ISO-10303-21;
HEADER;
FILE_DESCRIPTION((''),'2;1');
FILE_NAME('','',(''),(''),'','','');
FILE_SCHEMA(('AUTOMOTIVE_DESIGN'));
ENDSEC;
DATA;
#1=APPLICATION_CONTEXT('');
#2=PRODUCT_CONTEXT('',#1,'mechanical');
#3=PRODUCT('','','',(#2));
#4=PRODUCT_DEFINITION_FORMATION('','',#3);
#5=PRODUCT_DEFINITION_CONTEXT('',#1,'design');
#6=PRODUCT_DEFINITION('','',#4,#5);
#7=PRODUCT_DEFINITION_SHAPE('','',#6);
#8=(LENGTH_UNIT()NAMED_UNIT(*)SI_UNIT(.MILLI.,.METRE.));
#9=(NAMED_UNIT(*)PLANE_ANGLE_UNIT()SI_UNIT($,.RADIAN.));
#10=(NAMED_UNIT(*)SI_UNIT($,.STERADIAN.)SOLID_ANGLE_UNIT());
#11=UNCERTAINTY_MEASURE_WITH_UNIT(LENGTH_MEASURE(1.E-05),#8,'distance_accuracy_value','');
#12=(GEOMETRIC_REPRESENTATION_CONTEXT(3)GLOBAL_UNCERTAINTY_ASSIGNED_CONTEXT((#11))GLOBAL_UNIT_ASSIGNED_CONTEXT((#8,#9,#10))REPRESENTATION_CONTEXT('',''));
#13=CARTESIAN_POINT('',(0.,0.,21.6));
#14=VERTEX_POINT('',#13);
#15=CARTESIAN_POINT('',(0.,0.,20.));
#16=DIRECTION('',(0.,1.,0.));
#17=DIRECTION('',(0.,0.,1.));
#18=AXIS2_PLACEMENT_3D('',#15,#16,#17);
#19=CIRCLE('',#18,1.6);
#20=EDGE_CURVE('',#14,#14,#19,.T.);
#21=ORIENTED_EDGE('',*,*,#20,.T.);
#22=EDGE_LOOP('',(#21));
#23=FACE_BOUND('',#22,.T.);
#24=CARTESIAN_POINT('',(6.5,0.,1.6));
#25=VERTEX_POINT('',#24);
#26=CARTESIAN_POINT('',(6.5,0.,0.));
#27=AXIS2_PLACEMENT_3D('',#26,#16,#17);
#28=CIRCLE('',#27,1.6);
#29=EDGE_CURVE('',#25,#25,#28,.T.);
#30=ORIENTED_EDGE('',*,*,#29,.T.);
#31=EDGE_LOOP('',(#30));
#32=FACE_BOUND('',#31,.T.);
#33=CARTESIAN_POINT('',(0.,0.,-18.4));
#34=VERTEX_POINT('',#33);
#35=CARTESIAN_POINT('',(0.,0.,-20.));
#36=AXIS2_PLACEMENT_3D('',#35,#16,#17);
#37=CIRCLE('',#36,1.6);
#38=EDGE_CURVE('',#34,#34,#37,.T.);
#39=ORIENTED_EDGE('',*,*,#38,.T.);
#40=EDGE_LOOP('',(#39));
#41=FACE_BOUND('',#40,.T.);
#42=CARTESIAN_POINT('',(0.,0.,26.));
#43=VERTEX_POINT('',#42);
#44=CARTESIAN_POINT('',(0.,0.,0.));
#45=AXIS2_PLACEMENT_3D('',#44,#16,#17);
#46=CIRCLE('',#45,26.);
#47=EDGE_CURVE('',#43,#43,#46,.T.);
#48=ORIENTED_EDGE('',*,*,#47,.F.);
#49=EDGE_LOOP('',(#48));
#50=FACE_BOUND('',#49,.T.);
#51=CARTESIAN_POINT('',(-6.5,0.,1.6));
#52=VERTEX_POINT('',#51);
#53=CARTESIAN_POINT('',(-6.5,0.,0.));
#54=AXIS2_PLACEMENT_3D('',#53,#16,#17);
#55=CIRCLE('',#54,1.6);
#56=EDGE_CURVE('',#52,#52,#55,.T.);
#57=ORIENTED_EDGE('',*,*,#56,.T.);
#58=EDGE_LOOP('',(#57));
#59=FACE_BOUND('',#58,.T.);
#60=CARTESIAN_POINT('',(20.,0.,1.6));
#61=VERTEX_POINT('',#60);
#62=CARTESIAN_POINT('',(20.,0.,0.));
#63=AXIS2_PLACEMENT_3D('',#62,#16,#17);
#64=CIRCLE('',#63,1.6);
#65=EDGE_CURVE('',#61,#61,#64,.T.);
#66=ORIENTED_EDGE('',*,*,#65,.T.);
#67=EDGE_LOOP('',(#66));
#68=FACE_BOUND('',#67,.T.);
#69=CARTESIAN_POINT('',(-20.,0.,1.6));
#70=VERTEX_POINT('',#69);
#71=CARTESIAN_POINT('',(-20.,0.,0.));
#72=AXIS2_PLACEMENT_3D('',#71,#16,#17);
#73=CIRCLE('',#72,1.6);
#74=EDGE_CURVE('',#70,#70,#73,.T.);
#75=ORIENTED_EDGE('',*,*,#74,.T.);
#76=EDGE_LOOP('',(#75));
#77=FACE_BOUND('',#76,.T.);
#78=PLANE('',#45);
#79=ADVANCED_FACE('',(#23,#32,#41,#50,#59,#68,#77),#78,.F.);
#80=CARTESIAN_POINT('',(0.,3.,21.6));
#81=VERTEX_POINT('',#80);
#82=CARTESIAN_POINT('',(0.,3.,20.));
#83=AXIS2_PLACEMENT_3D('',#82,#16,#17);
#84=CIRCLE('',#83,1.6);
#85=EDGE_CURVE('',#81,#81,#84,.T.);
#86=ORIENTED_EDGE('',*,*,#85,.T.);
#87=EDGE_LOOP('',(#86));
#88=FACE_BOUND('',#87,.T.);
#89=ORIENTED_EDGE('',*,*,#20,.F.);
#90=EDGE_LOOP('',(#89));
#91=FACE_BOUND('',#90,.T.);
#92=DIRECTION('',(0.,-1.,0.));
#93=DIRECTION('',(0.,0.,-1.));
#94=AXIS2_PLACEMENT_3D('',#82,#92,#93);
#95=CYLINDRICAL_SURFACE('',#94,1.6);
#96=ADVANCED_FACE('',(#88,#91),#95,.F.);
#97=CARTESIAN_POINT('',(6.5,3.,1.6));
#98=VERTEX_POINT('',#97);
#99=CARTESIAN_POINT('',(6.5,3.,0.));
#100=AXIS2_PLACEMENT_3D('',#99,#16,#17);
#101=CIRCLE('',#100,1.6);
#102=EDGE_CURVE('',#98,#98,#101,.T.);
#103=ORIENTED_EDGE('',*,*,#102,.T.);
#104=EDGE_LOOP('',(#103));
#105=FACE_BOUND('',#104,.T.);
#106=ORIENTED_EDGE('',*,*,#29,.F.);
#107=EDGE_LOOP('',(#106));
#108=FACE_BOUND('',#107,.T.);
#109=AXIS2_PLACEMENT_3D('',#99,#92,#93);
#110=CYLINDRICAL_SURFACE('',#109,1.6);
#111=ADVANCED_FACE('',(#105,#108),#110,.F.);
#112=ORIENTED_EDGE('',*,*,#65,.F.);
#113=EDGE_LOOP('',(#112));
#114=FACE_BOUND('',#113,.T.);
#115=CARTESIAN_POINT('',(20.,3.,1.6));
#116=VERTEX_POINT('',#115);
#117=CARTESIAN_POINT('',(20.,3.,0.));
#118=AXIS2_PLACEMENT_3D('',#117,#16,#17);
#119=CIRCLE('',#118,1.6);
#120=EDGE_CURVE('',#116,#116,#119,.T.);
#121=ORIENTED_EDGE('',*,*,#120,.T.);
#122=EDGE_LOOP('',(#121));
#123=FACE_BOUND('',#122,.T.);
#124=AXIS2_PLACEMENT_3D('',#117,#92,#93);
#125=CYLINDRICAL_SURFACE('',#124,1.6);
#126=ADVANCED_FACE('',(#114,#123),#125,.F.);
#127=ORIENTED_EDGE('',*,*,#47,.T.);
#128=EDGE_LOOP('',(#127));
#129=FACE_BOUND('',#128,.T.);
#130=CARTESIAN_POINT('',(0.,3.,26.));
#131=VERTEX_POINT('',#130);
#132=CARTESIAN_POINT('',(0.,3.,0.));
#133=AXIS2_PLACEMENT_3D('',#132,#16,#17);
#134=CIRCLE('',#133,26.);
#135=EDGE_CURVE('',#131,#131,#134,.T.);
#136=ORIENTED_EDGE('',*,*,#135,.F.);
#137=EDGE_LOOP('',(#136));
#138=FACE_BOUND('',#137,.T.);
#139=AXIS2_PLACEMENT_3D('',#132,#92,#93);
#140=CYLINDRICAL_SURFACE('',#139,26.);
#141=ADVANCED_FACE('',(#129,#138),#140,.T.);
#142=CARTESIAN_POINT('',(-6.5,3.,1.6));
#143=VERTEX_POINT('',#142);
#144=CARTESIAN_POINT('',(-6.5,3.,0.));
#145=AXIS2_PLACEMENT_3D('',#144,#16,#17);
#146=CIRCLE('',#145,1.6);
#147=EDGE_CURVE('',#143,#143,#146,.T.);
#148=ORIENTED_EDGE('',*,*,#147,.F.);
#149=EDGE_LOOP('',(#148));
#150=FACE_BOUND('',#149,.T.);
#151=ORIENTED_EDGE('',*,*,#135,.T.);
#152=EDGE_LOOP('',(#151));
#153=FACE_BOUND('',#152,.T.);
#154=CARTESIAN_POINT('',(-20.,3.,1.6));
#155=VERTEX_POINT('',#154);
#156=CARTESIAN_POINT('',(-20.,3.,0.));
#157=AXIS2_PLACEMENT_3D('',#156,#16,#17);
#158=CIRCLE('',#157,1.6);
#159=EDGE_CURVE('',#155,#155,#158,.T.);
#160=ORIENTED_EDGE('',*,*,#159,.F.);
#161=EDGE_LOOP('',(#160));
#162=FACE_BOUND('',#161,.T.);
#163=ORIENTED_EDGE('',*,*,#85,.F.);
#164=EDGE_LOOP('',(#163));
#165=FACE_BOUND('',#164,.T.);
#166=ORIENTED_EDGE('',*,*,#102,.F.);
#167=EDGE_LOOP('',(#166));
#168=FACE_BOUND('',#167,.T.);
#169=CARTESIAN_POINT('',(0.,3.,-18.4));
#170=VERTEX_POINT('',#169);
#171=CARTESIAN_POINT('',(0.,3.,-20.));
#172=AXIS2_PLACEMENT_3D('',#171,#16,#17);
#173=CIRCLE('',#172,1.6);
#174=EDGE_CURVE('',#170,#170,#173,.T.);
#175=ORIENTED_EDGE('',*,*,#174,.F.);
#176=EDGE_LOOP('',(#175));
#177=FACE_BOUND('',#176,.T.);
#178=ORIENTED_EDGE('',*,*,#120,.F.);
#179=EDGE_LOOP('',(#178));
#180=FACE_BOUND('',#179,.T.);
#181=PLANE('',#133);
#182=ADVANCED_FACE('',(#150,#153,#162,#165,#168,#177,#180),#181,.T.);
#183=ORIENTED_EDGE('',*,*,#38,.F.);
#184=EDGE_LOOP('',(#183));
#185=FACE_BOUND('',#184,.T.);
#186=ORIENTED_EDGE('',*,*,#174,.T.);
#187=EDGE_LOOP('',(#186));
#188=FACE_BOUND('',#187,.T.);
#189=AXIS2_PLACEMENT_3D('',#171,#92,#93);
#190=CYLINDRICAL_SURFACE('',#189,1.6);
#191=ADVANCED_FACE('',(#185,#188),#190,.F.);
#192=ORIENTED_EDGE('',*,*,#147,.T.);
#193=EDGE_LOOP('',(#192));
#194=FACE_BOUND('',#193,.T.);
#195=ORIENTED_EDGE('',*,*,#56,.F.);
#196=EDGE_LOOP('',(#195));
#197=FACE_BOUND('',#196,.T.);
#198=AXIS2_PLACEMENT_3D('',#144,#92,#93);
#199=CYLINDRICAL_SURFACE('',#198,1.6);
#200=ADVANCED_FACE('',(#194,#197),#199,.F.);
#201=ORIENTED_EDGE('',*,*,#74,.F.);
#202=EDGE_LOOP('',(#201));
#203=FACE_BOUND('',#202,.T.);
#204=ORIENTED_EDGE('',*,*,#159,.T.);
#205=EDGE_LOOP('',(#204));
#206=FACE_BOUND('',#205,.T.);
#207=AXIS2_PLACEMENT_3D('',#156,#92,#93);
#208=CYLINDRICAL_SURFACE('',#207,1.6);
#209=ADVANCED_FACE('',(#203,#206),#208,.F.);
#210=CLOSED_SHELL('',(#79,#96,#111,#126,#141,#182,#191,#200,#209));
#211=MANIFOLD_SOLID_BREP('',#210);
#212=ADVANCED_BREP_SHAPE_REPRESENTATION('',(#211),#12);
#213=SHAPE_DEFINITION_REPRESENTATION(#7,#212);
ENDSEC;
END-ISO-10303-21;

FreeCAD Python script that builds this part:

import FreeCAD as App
import Part
import Sketcher
from FreeCAD import Vector
Q = App.Units.Quantity

doc = App.newDocument("Part")
body = doc.addObject("PartDesign::Body", "Body")

sketch1 = body.newObject("Sketcher::SketchObject", "Sketch")
sketch1.AttachmentSupport = (doc.getObject("XZ_Plane"), [""])
sketch1.MapMode = "FlatFace"
sketch1.addGeometry(Part.Circle(Vector(0, 0, 0), Vector(0, 0, 1), 26), False)
sketch1.addGeometry(Part.Circle(Vector(0, -20, 0), Vector(0, 0, 1), 1.6), False)
sketch1.addGeometry(Part.Circle(Vector(-20, 0, 0), Vector(0, 0, 1), 1.6), False)
sketch1.addGeometry(Part.Circle(Vector(-6.5, 0, 0), Vector(0, 0, 1), 1.6), False)
sketch1.addGeometry(Part.Circle(Vector(20, 0, 0), Vector(0, 0, 1), 1.6), False)
sketch1.addGeometry(Part.Circle(Vector(6.5, 0, 0), Vector(0, 0, 1), 1.6), False)
sketch1.addGeometry(Part.Circle(Vector(0, 20, 0), Vector(0, 0, 1), 1.6), False)
sketch1.addConstraint(Sketcher.Constraint("Coincident", 0, 3, -1, 1))
sketch1.addConstraint(Sketcher.Constraint("Equal", 1, 2))
sketch1.addConstraint(Sketcher.Constraint("Equal", 2, 3))
sketch1.addConstraint(Sketcher.Constraint("Equal", 3, 4))
sketch1.addConstraint(Sketcher.Constraint("Equal", 4, 5))
sketch1.addConstraint(Sketcher.Constraint("Equal", 5, 6))
sketch1.addConstraint(Sketcher.Constraint("Symmetric", 2, 3, 4, 3, -1, 1))
sketch1.addConstraint(Sketcher.Constraint("Symmetric", 3, 3, 5, 3, -1, 1))
sketch1.addConstraint(Sketcher.Constraint("Symmetric", 1, 3, 6, 3, -1, 1))
sketch1.addConstraint(Sketcher.Constraint("PointOnObject", 1, 3, -2))
sketch1.addConstraint(Sketcher.Constraint("PointOnObject", 2, 3, -1))
sketch1.addConstraint(Sketcher.Constraint("PointOnObject", 3, 3, -1))
sketch1.addConstraint(Sketcher.Constraint("Diameter", 0, Q("52 mm")))
sketch1.addConstraint(Sketcher.Constraint("Diameter", 1, Q("3.2 mm")))
sketch1.addConstraint(Sketcher.Constraint("DistanceY", 1, 3, -1, 1, Q("20 mm")))
sketch1.addConstraint(Sketcher.Constraint("DistanceX", 2, 3, -1, 1, Q("20 mm")))
sketch1.addConstraint(Sketcher.Constraint("DistanceX", 3, 3, 5, 3, Q("13 mm")))
pad1 = body.newObject("PartDesign::Pad", "Pad")
pad1.Profile = sketch1
pad1.Length = 3
pad1.Reversed = True

doc.recompute()
